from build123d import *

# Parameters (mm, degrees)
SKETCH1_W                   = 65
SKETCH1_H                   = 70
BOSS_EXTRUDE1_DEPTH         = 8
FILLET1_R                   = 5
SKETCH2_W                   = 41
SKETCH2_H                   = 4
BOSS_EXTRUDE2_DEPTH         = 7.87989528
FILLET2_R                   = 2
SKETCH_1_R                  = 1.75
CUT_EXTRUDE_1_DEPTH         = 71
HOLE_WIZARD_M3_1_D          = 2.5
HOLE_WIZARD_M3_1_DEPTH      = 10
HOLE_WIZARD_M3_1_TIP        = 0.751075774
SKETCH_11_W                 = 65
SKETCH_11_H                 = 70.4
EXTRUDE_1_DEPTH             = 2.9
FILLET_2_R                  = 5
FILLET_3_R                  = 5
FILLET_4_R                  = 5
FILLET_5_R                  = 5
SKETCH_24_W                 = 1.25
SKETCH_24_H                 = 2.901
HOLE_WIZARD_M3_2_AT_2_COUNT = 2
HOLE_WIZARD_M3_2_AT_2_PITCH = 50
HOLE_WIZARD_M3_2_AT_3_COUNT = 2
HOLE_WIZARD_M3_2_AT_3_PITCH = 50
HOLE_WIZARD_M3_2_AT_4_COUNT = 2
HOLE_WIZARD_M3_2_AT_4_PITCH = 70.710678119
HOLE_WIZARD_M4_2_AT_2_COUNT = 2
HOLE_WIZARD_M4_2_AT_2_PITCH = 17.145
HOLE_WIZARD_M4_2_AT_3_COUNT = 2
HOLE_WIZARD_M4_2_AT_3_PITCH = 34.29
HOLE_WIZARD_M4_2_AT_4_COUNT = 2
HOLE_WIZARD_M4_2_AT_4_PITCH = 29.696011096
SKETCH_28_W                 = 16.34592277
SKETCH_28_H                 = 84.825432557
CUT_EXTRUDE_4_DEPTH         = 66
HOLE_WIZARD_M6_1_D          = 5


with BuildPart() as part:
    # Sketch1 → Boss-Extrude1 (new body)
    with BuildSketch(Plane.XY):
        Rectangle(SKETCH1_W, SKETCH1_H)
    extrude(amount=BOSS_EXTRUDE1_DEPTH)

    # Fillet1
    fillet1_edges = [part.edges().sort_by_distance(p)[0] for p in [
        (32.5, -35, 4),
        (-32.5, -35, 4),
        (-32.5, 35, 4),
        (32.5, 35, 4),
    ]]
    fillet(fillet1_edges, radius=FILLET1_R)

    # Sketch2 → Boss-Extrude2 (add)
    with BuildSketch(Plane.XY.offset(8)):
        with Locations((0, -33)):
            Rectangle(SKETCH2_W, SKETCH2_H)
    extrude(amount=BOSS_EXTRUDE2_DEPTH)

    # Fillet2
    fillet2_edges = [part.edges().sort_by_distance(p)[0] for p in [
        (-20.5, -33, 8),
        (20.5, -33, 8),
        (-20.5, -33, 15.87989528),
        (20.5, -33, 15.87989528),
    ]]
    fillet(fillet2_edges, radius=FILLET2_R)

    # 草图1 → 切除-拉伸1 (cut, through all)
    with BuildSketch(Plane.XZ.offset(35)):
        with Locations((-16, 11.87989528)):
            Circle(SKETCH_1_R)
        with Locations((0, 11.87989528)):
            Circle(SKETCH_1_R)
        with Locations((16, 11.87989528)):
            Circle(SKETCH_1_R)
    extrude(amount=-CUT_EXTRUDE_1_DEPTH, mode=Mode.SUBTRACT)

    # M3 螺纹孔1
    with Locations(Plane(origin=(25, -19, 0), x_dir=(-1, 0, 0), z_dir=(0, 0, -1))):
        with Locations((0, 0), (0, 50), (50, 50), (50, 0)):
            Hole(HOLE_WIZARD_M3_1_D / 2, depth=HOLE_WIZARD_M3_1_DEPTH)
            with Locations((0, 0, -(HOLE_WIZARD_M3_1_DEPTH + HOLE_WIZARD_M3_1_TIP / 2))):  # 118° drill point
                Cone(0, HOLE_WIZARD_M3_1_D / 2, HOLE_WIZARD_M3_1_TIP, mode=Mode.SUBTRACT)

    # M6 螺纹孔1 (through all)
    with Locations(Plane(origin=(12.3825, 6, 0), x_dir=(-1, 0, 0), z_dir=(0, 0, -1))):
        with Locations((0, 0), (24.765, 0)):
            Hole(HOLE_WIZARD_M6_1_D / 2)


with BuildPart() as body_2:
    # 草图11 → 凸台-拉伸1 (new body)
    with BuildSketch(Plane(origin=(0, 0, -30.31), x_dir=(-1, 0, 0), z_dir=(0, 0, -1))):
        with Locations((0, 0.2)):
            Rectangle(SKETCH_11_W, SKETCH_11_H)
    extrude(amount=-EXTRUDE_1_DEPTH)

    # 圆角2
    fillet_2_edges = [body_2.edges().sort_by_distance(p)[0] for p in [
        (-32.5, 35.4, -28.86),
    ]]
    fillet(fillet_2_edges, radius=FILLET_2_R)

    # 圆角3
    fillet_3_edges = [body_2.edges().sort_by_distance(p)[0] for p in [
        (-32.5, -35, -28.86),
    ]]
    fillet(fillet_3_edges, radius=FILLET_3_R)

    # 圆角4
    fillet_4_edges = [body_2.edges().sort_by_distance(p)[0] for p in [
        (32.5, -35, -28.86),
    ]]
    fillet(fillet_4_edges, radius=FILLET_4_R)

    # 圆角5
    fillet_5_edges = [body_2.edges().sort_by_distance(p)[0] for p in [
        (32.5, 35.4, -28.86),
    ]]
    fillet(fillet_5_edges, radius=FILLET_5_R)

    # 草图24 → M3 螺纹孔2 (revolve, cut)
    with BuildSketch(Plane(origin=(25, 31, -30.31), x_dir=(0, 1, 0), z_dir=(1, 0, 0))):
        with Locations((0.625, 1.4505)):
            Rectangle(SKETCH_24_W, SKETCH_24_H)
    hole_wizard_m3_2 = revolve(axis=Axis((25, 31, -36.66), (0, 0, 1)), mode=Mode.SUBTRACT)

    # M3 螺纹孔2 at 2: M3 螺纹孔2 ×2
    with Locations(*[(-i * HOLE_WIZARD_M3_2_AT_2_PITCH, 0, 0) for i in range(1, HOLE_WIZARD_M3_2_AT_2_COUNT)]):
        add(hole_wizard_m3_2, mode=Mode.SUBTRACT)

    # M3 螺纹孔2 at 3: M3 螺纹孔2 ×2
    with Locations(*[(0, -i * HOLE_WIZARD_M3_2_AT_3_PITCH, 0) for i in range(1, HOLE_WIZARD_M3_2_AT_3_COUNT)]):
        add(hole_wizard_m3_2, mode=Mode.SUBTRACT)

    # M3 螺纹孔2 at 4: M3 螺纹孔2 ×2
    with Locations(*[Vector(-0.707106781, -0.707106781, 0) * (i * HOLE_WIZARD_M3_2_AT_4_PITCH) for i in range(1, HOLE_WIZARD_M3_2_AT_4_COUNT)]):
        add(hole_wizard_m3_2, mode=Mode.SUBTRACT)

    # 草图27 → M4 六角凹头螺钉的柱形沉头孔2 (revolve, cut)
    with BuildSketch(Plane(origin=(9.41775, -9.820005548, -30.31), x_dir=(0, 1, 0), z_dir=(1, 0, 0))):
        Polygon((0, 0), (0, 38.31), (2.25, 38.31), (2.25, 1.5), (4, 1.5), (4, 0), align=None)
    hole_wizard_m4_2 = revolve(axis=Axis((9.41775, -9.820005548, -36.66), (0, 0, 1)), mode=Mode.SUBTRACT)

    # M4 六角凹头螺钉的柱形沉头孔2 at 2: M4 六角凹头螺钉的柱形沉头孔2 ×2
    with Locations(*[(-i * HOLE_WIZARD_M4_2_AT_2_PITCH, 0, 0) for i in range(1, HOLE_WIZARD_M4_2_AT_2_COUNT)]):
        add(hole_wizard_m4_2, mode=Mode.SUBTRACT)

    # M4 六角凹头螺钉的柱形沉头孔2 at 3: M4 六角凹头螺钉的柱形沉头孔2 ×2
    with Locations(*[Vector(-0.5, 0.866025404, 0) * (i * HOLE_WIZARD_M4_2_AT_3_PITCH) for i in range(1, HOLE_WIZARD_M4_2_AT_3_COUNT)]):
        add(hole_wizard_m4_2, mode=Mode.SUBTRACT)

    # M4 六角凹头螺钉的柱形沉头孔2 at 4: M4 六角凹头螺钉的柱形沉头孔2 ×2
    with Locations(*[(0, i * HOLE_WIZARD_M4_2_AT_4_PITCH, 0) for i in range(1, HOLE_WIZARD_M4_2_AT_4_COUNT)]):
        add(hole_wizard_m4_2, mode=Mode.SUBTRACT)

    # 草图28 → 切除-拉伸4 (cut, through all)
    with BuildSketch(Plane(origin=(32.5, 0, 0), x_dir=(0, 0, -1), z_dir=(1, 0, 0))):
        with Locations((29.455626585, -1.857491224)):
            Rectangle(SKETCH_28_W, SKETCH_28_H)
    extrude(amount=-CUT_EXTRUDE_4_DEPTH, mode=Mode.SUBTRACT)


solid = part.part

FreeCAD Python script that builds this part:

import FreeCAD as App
import Part
import Sketcher

V = App.Vector


def edges_at(feature, points):
    """Names of the edges that pass closest to the given points."""
    edges = feature.Shape.Edges
    near = lambda p: min(range(len(edges)), key=lambda i: edges[i].distToShape(Part.Vertex(*p))[0])
    return sorted({f"Edge{near(p) + 1}" for p in points})

doc = App.newDocument("Part")
params = doc.addObject("Spreadsheet::Sheet", "Params")
for row, (alias, value) in enumerate([
    ("sketch1_width", "65 mm"),
    ("sketch1_height", "70 mm"),
    ("pad1_length", "8 mm"),
    ("fillet_radius", "5 mm"),
    ("sketch2_width", "41 mm"),
    ("sketch2_height", "4 mm"),
    ("pad2_length", "7.879895 mm"),
    ("fillet2_radius", "2 mm"),
    ("sketch3_diameter", "3.5 mm"),
    ("sketch4_diameter", "2.5 mm"),
    ("hole_diameter", "2.5 mm"),
    ("hole_depth", "10 mm"),
    ("sketch5_diameter", "5 mm"),
    ("hole2_diameter", "5 mm"),
    ("sketch6_width", "65 mm"),
    ("sketch6_height", "70.4 mm"),
    ("pad3_length", "2.9 mm"),
    ("fillet3_radius", "5 mm"),
    ("fillet4_radius", "5 mm"),
    ("fillet5_radius", "5 mm"),
    ("fillet6_radius", "5 mm"),
    ("sketch7_width", "1.25 mm"),
    ("groove_angle", "360 deg"),
    ("linearpattern_pitch", "50 mm"),
    ("linearpattern2_pitch", "50 mm"),
    ("linearpattern3_pitch", "70.710678 mm"),
    ("sketch8_width", "4 mm"),
    ("sketch8_height", "1.5 mm"),
    ("sketch8_width2", "1.75 mm"),
    ("sketch8_height2", "38.31 mm"),
    ("groove2_angle", "360 deg"),
    ("linearpattern4_pitch", "17.145 mm"),
    ("linearpattern5_pitch", "34.29 mm"),
    ("linearpattern6_pitch", "29.696011 mm"),
], start=1):
    params.set(f"A{row}", alias)
    params.set(f"B{row}", "=" + value)
    params.setAlias(f"B{row}", alias)

body = doc.addObject("PartDesign::Body", "Body")

# Sketch on XY plane
sketch1 = doc.addObject("Sketcher::SketchObject", "Sketch")
body.addObject(sketch1)
sketch1.AttachmentSupport = (doc.XY_Plane, [""])
sketch1.MapMode = "FlatFace"
sketch1.addGeometry([
    Part.LineSegment(V(-32, 35, 0), V(-32, -35, 0)),
    Part.LineSegment(V(-32, -35, 0), V(32, -35, 0)),
    Part.LineSegment(V(32, -35, 0), V(32, 35, 0)),
    Part.LineSegment(V(32, 35, 0), V(-32, 35, 0)),
], False)
sketch1.addConstraint([
    Sketcher.Constraint("Coincident", 0, 2, 1, 1),
    Sketcher.Constraint("Coincident", 1, 2, 2, 1),
    Sketcher.Constraint("Coincident", 2, 2, 3, 1),
    Sketcher.Constraint("Coincident", 3, 2, 0, 1),
    Sketcher.Constraint("Vertical", 0),
    Sketcher.Constraint("Horizontal", 1),
    Sketcher.Constraint("Vertical", 2),
    Sketcher.Constraint("Horizontal", 3),
    Sketcher.Constraint("Symmetric", 0, 2, 2, 2, -1, 1),
    Sketcher.Constraint("DistanceX", 1, 1, 1, 2, 65.0),
    Sketcher.Constraint("DistanceY", 0, 2, 0, 1, 70.0),
])
sketch1.setExpression("Constraints[9]", "Params.sketch1_width")
sketch1.setExpression("Constraints[10]", "Params.sketch1_height")
pad1 = doc.addObject("PartDesign::Pad", "Pad")
body.addObject(pad1)
pad1.Profile = sketch1
pad1.setExpression("Length", "Params.pad1_length")
doc.recompute()

fillet = doc.addObject("PartDesign::Fillet", "Fillet")
body.addObject(fillet)
fillet.Base = (pad1, edges_at(pad1, [
    (32.5, -35, 4),
    (-32.5, -35, 4),
    (-32.5, 35, 4),
    (32.5, 35, 4),
]))
fillet.setExpression("Radius", "Params.fillet_radius")

# Sketch on XY plane
sketch2 = doc.addObject("Sketcher::SketchObject", "Sketch001")
body.addObject(sketch2)
sketch2.AttachmentSupport = (doc.XY_Plane, [""])
sketch2.MapMode = "FlatFace"
sketch2.AttachmentOffset = App.Placement(V(0, 0, 8), App.Rotation())
sketch2.addGeometry([
    Part.LineSegment(V(-20.5, -31, 0), V(-20.5, -35, 0)),
    Part.LineSegment(V(-20.5, -35, 0), V(20.5, -35, 0)),
    Part.LineSegment(V(20.5, -35, 0), V(20.5, -31, 0)),
    Part.LineSegment(V(20.5, -31, 0), V(-20.5, -31, 0)),
], False)
sketch2.addConstraint([
    Sketcher.Constraint("Coincident", 0, 2, 1, 1),
    Sketcher.Constraint("Coincident", 1, 2, 2, 1),
    Sketcher.Constraint("Coincident", 2, 2, 3, 1),
    Sketcher.Constraint("Coincident", 3, 2, 0, 1),
    Sketcher.Constraint("Vertical", 0),
    Sketcher.Constraint("Horizontal", 1),
    Sketcher.Constraint("Vertical", 2),
    Sketcher.Constraint("Horizontal", 3),
    Sketcher.Constraint("DistanceX", 1, 1, 1, 2, 41.0),
    Sketcher.Constraint("DistanceY", 0, 2, 0, 1, 4.0),
    Sketcher.Constraint("DistanceY", 0, 2, -1, 1, 35.0),
    Sketcher.Constraint("DistanceX", 0, 2, -1, 1, 20.5),
])
sketch2.setExpression("Constraints[8]", "Params.sketch2_width")
sketch2.setExpression("Constraints[9]", "Params.sketch2_height")
pad2 = doc.addObject("PartDesign::Pad", "Pad001")
body.addObject(pad2)
pad2.Profile = sketch2
pad2.setExpression("Length", "Params.pad2_length")
doc.recompute()

fillet2 = doc.addObject("PartDesign::Fillet", "Fillet001")
body.addObject(fillet2)
fillet2.Base = (pad2, edges_at(pad2, [
    (-20.5, -33, 8),
    (20.5, -33, 8),
    (-20.5, -33, 15.88),
    (20.5, -33, 15.88),
]))
fillet2.setExpression("Radius", "Params.fillet2_radius")

# Sketch on XZ plane
sketch3 = doc.addObject("Sketcher::SketchObject", "Sketch002")
body.addObject(sketch3)
sketch3.AttachmentSupport = (doc.XZ_Plane, [""])
sketch3.MapMode = "FlatFace"
sketch3.AttachmentOffset = App.Placement(V(0, 0, 35), App.Rotation())
sketch3.addGeometry([
    Part.Circle(V(-16, 11.9, 0), V(0, 0, 1), 1.8),
    Part.Circle(V(0, 11.9, 0), V(0, 0, 1), 1.8),
    Part.Circle(V(16, 11.9, 0), V(0, 0, 1), 1.8),
], False)
sketch3.addConstraint([
    Sketcher.Constraint("Equal", 0, 1),
    Sketcher.Constraint("Equal", 1, 2),
    Sketcher.Constraint("Symmetric", 0, 3, 2, 3, -2),
    Sketcher.Constraint("PointOnObject", 1, 3, -2),
    Sketcher.Constraint("Horizontal", 0, 3, 1, 3),
    Sketcher.Constraint("Diameter", 0, 3.5),
    Sketcher.Constraint("DistanceX", 0, 3, -1, 1, 16.0),
    Sketcher.Constraint("DistanceY", -1, 1, 0, 3, 11.879895),
])
sketch3.setExpression("Constraints[5]", "Params.sketch3_diameter")
pocket1 = doc.addObject("PartDesign::Pocket", "Pocket")
body.addObject(pocket1)
pocket1.Profile = sketch3
pocket1.Type = "ThroughAll"

# Sketch on XY plane
sketch4 = doc.addObject("Sketcher::SketchObject", "Sketch003")
body.addObject(sketch4)
sketch4.AttachmentSupport = (doc.XY_Plane, [""])
sketch4.MapMode = "FlatFace"
sketch4.addGeometry([
    Part.Circle(V(25, -19, 0), V(0, 0, 1), 1.2),
    Part.Circle(V(25, 31, 0), V(0, 0, 1), 1.2),
    Part.Circle(V(-25, 31, 0), V(0, 0, 1), 1.2),
    Part.Circle(V(-25, -19, 0), V(0, 0, 1), 1.2),
], False)
sketch4.addConstraint([
    Sketcher.Constraint("Equal", 0, 1),
    Sketcher.Constraint("Equal", 1, 2),
    Sketcher.Constraint("Equal", 2, 3),
    Sketcher.Constraint("Symmetric", 1, 3, 2, 3, -2),
    Sketcher.Constraint("Symmetric", 0, 3, 3, 3, -2),
    Sketcher.Constraint("Vertical", 0, 3, 1, 3),
    Sketcher.Constraint("Diameter", 0, 2.5),
    Sketcher.Constraint("DistanceX", -1, 1, 0, 3, 25.0),
    Sketcher.Constraint("DistanceY", 0, 3, -1, 1, 19.0),
    Sketcher.Constraint("DistanceY", -1, 1, 1, 3, 31.0),
])
sketch4.setExpression("Constraints[6]", "Params.sketch4_diameter")
doc.recompute()
hole = doc.addObject("PartDesign::Hole", "Hole")
body.addObject(hole)
hole.Profile = sketch4
hole.ThreadType = "None"
hole.setExpression("Diameter", "Params.hole_diameter")
hole.DepthType = "Dimension"
hole.setExpression("Depth", "Params.hole_depth")
hole.DrillPoint = "Angled"
hole.DrillPointAngle = 118
hole.Reversed = True

# Sketch on XY plane
sketch5 = doc.addObject("Sketcher::SketchObject", "Sketch004")
body.addObject(sketch5)
sketch5.AttachmentSupport = (doc.XY_Plane, [""])
sketch5.MapMode = "FlatFace"
sketch5.addGeometry([
    Part.Circle(V(12.4, 6, 0), V(0, 0, 1), 2.5),
    Part.Circle(V(-12.4, 6, 0), V(0, 0, 1), 2.5),
], False)
sketch5.addConstraint([
    Sketcher.Constraint("Equal", 0, 1),
    Sketcher.Constraint("Symmetric", 0, 3, 1, 3, -2),
    Sketcher.Constraint("Diameter", 0, 5.0),
    Sketcher.Constraint("DistanceY", -1, 1, 0, 3, 6.0),
    Sketcher.Constraint("DistanceX", 1, 3, 0, 3, 24.765),
])
sketch5.setExpression("Constraints[2]", "Params.sketch5_diameter")
doc.recompute()
hole2 = doc.addObject("PartDesign::Hole", "Hole001")
body.addObject(hole2)
hole2.Profile = sketch5
hole2.ThreadType = "None"
hole2.setExpression("Diameter", "Params.hole2_diameter")
hole2.DepthType = "ThroughAll"
hole2.Reversed = True
body2 = doc.addObject("PartDesign::Body", "Body001")

# Sketch on XY plane
sketch6 = doc.addObject("Sketcher::SketchObject", "Sketch005")
body2.addObject(sketch6)
sketch6.AttachmentSupport = (doc.getObject("XY_Plane001"), [""])
sketch6.MapMode = "FlatFace"
sketch6.AttachmentOffset = App.Placement(V(0, 0, -30.31), App.Rotation())
sketch6.addGeometry([
    Part.LineSegment(V(32, 35, 0), V(32, -35, 0)),
    Part.LineSegment(V(32, -35, 0), V(-32, -35, 0)),
    Part.LineSegment(V(-32, -35, 0), V(-32, 35, 0)),
    Part.LineSegment(V(-32, 35, 0), V(32, 35, 0)),
], False)
sketch6.addConstraint([
    Sketcher.Constraint("Coincident", 0, 2, 1, 1),
    Sketcher.Constraint("Coincident", 1, 2, 2, 1),
    Sketcher.Constraint("Coincident", 2, 2, 3, 1),
    Sketcher.Constraint("Coincident", 3, 2, 0, 1),
    Sketcher.Constraint("Vertical", 0),
    Sketcher.Constraint("Horizontal", 1),
    Sketcher.Constraint("Vertical", 2),
    Sketcher.Constraint("Horizontal", 3),
    Sketcher.Constraint("DistanceX", 1, 2, 1, 1, 65.0),
    Sketcher.Constraint("DistanceY", 0, 2, 0, 1, 70.4),
    Sketcher.Constraint("DistanceY", 0, 2, -1, 1, 35.0),
    Sketcher.Constraint("DistanceX", -1, 1, 0, 2, 32.5),
])
sketch6.setExpression("Constraints[8]", "Params.sketch6_width")
sketch6.setExpression("Constraints[9]", "Params.sketch6_height")
pad3 = doc.addObject("PartDesign::Pad", "Pad002")
body2.addObject(pad3)
pad3.Profile = sketch6
pad3.setExpression("Length", "Params.pad3_length")
doc.recompute()

fillet3 = doc.addObject("PartDesign::Fillet", "Fillet002")
body2.addObject(fillet3)
fillet3.Base = (pad3, edges_at(pad3, [(-32.5, 35.4, -28.86)]))
fillet3.setExpression("Radius", "Params.fillet3_radius")
doc.recompute()

fillet4 = doc.addObject("PartDesign::Fillet", "Fillet003")
body2.addObject(fillet4)
fillet4.Base = (fillet3, edges_at(fillet3, [(-32.5, -35, -28.86)]))
fillet4.setExpression("Radius", "Params.fillet4_radius")
doc.recompute()

fillet5 = doc.addObject("PartDesign::Fillet", "Fillet004")
body2.addObject(fillet5)
fillet5.Base = (fillet4, edges_at(fillet4, [(32.5, -35, -28.86)]))
fillet5.setExpression("Radius", "Params.fillet5_radius")
doc.recompute()

fillet6 = doc.addObject("PartDesign::Fillet", "Fillet005")
body2.addObject(fillet6)
fillet6.Base = (fillet5, edges_at(fillet5, [(32.5, 35.4, -28.86)]))
fillet6.setExpression("Radius", "Params.fillet6_radius")

# Sketch on YZ plane
sketch7 = doc.addObject("Sketcher::SketchObject", "Sketch006")
body2.addObject(sketch7)
sketch7.AttachmentSupport = (doc.getObject("YZ_Plane001"), [""])
sketch7.MapMode = "FlatFace"
sketch7.AttachmentOffset = App.Placement(V(0, 0, 25), App.Rotation())
sketch7.addGeometry([
    Part.LineSegment(V(31, -27.4, 0), V(31, -30.3, 0)),
    Part.LineSegment(V(31, -30.3, 0), V(32.2, -30.3, 0)),
    Part.LineSegment(V(32.2, -30.3, 0), V(32.2, -27.4, 0)),
    Part.LineSegment(V(32.2, -27.4, 0), V(31, -27.4, 0)),
], False)
sketch7.addGeometry(Part.LineSegment(V(31, -30.3, 0), V(31, -27.4, 0)), True)  # axis
sketch7.addConstraint([
    Sketcher.Constraint("Coincident", 0, 2, 1, 1),
    Sketcher.Constraint("Coincident", 1, 2, 2, 1),
    Sketcher.Constraint("Coincident", 2, 2, 3, 1),
    Sketcher.Constraint("Coincident", 3, 2, 0, 1),
    Sketcher.Constraint("Vertical", 0),
    Sketcher.Constraint("Horizontal", 1),
    Sketcher.Constraint("Vertical", 2),
    Sketcher.Constraint("Horizontal", 3),
    Sketcher.Constraint("Vertical", 4),
    Sketcher.Constraint("Coincident", 4, 1, 0, 2),
    Sketcher.Constraint("Horizontal", 2, 2, 4, 2),
    Sketcher.Constraint("DistanceX", -1, 1, 0, 2, 31.0),
    Sketcher.Constraint("DistanceX", 1, 1, 1, 2, 1.25),
    Sketcher.Constraint("DistanceY", 0, 2, 0, 1, 2.901),
    Sketcher.Constraint("DistanceY", 0, 2, -1, 1, 30.31),
])
sketch7.setExpression("Constraints[12]", "Params.sketch7_width")
groove = doc.addObject("PartDesign::Groove", "Groove")
body2.addObject(groove)
groove.Profile = sketch7
groove.ReferenceAxis = (sketch7, ["Axis0"])
groove.setExpression("Angle", "Params.groove_angle")
doc.recompute()

linearpattern = doc.addObject("PartDesign::LinearPattern", "LinearPattern")
body2.addObject(linearpattern)
linearpattern.Originals = [groove]
linearpattern.Direction = (doc.getObject("X_Axis001"), [""])
linearpattern.Mode = "offset"
linearpattern.setExpression("Offset", "Params.linearpattern_pitch")
linearpattern.Occurrences = 2
linearpattern.Reversed = True
body2.Tip = linearpattern
doc.recompute()

linearpattern2 = doc.addObject("PartDesign::LinearPattern", "LinearPattern001")
body2.addObject(linearpattern2)
linearpattern2.Originals = [groove]
linearpattern2.Direction = (doc.getObject("Y_Axis001"), [""])
linearpattern2.Mode = "offset"
linearpattern2.setExpression("Offset", "Params.linearpattern2_pitch")
linearpattern2.Occurrences = 2
linearpattern2.Reversed = True
body2.Tip = linearpattern2
doc.recompute()

datumline = doc.addObject("PartDesign::Line", "DatumLine")
body2.addObject(datumline)
datumline.Placement = App.Placement(V(0, 0, 0), App.Rotation(V(0, 0, 1), V(-0.707106781, -0.707106781, 0)))
linearpattern3 = doc.addObject("PartDesign::LinearPattern", "LinearPattern002")
body2.addObject(linearpattern3)
linearpattern3.Originals = [groove]
linearpattern3.Direction = (datumline, [""])
linearpattern3.Mode = "offset"
linearpattern3.setExpression("Offset", "Params.linearpattern3_pitch")
linearpattern3.Occurrences = 2
body2.Tip = linearpattern3

# Sketch on YZ plane
sketch8 = doc.addObject("Sketcher::SketchObject", "Sketch007")
body2.addObject(sketch8)
sketch8.AttachmentSupport = (doc.getObject("YZ_Plane001"), [""])
sketch8.MapMode = "FlatFace"
sketch8.AttachmentOffset = App.Placement(V(0, 0, 9.41775), App.Rotation())
sketch8.addGeometry([
    Part.LineSegment(V(-9.8, 8, 0), V(-9.8, -30.3, 0)),  # 0
    Part.LineSegment(V(-9.8, -30.3, 0), V(-5.8, -30.3, 0)),  # 1
    Part.LineSegment(V(-5.8, -30.3, 0), V(-5.8, -28.8, 0)),  # 2
    Part.LineSegment(V(-5.8, -28.8, 0), V(-7.6, -28.8, 0)),  # 3
    Part.LineSegment(V(-7.6, -28.8, 0), V(-7.6, 8, 0)),  # 4
    Part.LineSegment(V(-7.6, 8, 0), V(-9.8, 8, 0)),  # 5
], False)
sketch8.addGeometry(Part.LineSegment(V(-9.8, -30.3, 0), V(-9.8, 8, 0)), True)  # axis
sketch8.addConstraint([
    Sketcher.Constraint("Coincident", 0, 2, 1, 1),
    Sketcher.Constraint("Coincident", 1, 2, 2, 1),
    Sketcher.Constraint("Coincident", 2, 2, 3, 1),
    Sketcher.Constraint("Coincident", 3, 2, 4, 1),
    Sketcher.Constraint("Coincident", 4, 2, 5, 1),
    Sketcher.Constraint("Coincident", 5, 2, 0, 1),
    Sketcher.Constraint("Vertical", 0),
    Sketcher.Constraint("Horizontal", 1),
    Sketcher.Constraint("Vertical", 2),
    Sketcher.Constraint("Horizontal", 3),
    Sketcher.Constraint("Vertical", 4),
    Sketcher.Constraint("Horizontal", 5),
    Sketcher.Constraint("Vertical", 6),
    Sketcher.Constraint("Coincident", 6, 1, 0, 2),
    Sketcher.Constraint("Horizontal", 4, 2, 6, 2),
    Sketcher.Constraint("DistanceX", 1, 1, 1, 2, 4.0),
    Sketcher.Constraint("DistanceY", 2, 1, 2, 2, 1.5),
    Sketcher.Constraint("DistanceY", -1, 1, 4, 2, 8.0),
    Sketcher.Constraint("DistanceX", 3, 2, 3, 1, 1.75),
    Sketcher.Constraint("DistanceY", 0, 2, 0, 1, 38.31),
    Sketcher.Constraint("DistanceX", 0, 2, -1, 1, 9.820006),
])
sketch8.setExpression("Constraints[15]", "Params.sketch8_width")
sketch8.setExpression("Constraints[16]", "Params.sketch8_height")
sketch8.setExpression("Constraints[18]", "Params.sketch8_width2")
sketch8.setExpression("Constraints[19]", "Params.sketch8_height2")
groove2 = doc.addObject("PartDesign::Groove", "Groove001")
body2.addObject(groove2)
groove2.Profile = sketch8
groove2.ReferenceAxis = (sketch8, ["Axis0"])
groove2.setExpression("Angle", "Params.groove2_angle")
doc.recompute()

linearpattern4 = doc.addObject("PartDesign::LinearPattern", "LinearPattern003")
body2.addObject(linearpattern4)
linearpattern4.Originals = [groove2]
linearpattern4.Direction = (doc.getObject("X_Axis001"), [""])
linearpattern4.Mode = "offset"
linearpattern4.setExpression("Offset", "Params.linearpattern4_pitch")
linearpattern4.Occurrences = 2
linearpattern4.Reversed = True
body2.Tip = linearpattern4
doc.recompute()

datumline2 = doc.addObject("PartDesign::Line", "DatumLine001")
body2.addObject(datumline2)
datumline2.Placement = App.Placement(V(0, 0, 0), App.Rotation(V(0, 0, 1), V(-0.5, 0.866025404, 0)))
linearpattern5 = doc.addObject("PartDesign::LinearPattern", "LinearPattern004")
body2.addObject(linearpattern5)
linearpattern5.Originals = [groove2]
linearpattern5.Direction = (datumline2, [""])
linearpattern5.Mode = "offset"
linearpattern5.setExpression("Offset", "Params.linearpattern5_pitch")
linearpattern5.Occurrences = 2
body2.Tip = linearpattern5
doc.recompute()

linearpattern6 = doc.addObject("PartDesign::LinearPattern", "LinearPattern005")
body2.addObject(linearpattern6)
linearpattern6.Originals = [groove2]
linearpattern6.Direction = (doc.getObject("Y_Axis001"), [""])
linearpattern6.Mode = "offset"
linearpattern6.setExpression("Offset", "Params.linearpattern6_pitch")
linearpattern6.Occurrences = 2
body2.Tip = linearpattern6

# Sketch on YZ plane
sketch9 = doc.addObject("Sketcher::SketchObject", "Sketch008")
body2.addObject(sketch9)
sketch9.AttachmentSupport = (doc.getObject("YZ_Plane001"), [""])
sketch9.MapMode = "FlatFace"
sketch9.AttachmentOffset = App.Placement(V(0, 0, 32.5), App.Rotation())
sketch9.addGeometry([
    Part.LineSegment(V(41, -21, 0), V(-44, -21, 0)),
    Part.LineSegment(V(-44, -21, 0), V(-44, -38, 0)),
    Part.LineSegment(V(-44, -38, 0), V(41, -38, 0)),
    Part.LineSegment(V(41, -38, 0), V(41, -21, 0)),
], False)
sketch9.addConstraint([
    Sketcher.Constraint("Coincident", 0, 2, 1, 1),
    Sketcher.Constraint("Coincident", 1, 2, 2, 1),
    Sketcher.Constraint("Coincident", 2, 2, 3, 1),
    Sketcher.Constraint("Coincident", 3, 2, 0, 1),
    Sketcher.Constraint("Horizontal", 0),
    Sketcher.Constraint("Vertical", 1),
    Sketcher.Constraint("Horizontal", 2),
    Sketcher.Constraint("Vertical", 3),
    Sketcher.Constraint("DistanceX", 0, 2, 0, 1, 84.825433),
    Sketcher.Constraint("DistanceY", 1, 2, 1, 1, 16.345923),
    Sketcher.Constraint("DistanceX", 0, 2, -1, 1, 44.270208),
    Sketcher.Constraint("DistanceY", 0, 2, -1, 1, 21.282665),
])
pocket2 = doc.addObject("PartDesign::Pocket", "Pocket001")
body2.addObject(pocket2)
pocket2.Profile = sketch9
pocket2.Type = "ThroughAll"

doc.recompute()
